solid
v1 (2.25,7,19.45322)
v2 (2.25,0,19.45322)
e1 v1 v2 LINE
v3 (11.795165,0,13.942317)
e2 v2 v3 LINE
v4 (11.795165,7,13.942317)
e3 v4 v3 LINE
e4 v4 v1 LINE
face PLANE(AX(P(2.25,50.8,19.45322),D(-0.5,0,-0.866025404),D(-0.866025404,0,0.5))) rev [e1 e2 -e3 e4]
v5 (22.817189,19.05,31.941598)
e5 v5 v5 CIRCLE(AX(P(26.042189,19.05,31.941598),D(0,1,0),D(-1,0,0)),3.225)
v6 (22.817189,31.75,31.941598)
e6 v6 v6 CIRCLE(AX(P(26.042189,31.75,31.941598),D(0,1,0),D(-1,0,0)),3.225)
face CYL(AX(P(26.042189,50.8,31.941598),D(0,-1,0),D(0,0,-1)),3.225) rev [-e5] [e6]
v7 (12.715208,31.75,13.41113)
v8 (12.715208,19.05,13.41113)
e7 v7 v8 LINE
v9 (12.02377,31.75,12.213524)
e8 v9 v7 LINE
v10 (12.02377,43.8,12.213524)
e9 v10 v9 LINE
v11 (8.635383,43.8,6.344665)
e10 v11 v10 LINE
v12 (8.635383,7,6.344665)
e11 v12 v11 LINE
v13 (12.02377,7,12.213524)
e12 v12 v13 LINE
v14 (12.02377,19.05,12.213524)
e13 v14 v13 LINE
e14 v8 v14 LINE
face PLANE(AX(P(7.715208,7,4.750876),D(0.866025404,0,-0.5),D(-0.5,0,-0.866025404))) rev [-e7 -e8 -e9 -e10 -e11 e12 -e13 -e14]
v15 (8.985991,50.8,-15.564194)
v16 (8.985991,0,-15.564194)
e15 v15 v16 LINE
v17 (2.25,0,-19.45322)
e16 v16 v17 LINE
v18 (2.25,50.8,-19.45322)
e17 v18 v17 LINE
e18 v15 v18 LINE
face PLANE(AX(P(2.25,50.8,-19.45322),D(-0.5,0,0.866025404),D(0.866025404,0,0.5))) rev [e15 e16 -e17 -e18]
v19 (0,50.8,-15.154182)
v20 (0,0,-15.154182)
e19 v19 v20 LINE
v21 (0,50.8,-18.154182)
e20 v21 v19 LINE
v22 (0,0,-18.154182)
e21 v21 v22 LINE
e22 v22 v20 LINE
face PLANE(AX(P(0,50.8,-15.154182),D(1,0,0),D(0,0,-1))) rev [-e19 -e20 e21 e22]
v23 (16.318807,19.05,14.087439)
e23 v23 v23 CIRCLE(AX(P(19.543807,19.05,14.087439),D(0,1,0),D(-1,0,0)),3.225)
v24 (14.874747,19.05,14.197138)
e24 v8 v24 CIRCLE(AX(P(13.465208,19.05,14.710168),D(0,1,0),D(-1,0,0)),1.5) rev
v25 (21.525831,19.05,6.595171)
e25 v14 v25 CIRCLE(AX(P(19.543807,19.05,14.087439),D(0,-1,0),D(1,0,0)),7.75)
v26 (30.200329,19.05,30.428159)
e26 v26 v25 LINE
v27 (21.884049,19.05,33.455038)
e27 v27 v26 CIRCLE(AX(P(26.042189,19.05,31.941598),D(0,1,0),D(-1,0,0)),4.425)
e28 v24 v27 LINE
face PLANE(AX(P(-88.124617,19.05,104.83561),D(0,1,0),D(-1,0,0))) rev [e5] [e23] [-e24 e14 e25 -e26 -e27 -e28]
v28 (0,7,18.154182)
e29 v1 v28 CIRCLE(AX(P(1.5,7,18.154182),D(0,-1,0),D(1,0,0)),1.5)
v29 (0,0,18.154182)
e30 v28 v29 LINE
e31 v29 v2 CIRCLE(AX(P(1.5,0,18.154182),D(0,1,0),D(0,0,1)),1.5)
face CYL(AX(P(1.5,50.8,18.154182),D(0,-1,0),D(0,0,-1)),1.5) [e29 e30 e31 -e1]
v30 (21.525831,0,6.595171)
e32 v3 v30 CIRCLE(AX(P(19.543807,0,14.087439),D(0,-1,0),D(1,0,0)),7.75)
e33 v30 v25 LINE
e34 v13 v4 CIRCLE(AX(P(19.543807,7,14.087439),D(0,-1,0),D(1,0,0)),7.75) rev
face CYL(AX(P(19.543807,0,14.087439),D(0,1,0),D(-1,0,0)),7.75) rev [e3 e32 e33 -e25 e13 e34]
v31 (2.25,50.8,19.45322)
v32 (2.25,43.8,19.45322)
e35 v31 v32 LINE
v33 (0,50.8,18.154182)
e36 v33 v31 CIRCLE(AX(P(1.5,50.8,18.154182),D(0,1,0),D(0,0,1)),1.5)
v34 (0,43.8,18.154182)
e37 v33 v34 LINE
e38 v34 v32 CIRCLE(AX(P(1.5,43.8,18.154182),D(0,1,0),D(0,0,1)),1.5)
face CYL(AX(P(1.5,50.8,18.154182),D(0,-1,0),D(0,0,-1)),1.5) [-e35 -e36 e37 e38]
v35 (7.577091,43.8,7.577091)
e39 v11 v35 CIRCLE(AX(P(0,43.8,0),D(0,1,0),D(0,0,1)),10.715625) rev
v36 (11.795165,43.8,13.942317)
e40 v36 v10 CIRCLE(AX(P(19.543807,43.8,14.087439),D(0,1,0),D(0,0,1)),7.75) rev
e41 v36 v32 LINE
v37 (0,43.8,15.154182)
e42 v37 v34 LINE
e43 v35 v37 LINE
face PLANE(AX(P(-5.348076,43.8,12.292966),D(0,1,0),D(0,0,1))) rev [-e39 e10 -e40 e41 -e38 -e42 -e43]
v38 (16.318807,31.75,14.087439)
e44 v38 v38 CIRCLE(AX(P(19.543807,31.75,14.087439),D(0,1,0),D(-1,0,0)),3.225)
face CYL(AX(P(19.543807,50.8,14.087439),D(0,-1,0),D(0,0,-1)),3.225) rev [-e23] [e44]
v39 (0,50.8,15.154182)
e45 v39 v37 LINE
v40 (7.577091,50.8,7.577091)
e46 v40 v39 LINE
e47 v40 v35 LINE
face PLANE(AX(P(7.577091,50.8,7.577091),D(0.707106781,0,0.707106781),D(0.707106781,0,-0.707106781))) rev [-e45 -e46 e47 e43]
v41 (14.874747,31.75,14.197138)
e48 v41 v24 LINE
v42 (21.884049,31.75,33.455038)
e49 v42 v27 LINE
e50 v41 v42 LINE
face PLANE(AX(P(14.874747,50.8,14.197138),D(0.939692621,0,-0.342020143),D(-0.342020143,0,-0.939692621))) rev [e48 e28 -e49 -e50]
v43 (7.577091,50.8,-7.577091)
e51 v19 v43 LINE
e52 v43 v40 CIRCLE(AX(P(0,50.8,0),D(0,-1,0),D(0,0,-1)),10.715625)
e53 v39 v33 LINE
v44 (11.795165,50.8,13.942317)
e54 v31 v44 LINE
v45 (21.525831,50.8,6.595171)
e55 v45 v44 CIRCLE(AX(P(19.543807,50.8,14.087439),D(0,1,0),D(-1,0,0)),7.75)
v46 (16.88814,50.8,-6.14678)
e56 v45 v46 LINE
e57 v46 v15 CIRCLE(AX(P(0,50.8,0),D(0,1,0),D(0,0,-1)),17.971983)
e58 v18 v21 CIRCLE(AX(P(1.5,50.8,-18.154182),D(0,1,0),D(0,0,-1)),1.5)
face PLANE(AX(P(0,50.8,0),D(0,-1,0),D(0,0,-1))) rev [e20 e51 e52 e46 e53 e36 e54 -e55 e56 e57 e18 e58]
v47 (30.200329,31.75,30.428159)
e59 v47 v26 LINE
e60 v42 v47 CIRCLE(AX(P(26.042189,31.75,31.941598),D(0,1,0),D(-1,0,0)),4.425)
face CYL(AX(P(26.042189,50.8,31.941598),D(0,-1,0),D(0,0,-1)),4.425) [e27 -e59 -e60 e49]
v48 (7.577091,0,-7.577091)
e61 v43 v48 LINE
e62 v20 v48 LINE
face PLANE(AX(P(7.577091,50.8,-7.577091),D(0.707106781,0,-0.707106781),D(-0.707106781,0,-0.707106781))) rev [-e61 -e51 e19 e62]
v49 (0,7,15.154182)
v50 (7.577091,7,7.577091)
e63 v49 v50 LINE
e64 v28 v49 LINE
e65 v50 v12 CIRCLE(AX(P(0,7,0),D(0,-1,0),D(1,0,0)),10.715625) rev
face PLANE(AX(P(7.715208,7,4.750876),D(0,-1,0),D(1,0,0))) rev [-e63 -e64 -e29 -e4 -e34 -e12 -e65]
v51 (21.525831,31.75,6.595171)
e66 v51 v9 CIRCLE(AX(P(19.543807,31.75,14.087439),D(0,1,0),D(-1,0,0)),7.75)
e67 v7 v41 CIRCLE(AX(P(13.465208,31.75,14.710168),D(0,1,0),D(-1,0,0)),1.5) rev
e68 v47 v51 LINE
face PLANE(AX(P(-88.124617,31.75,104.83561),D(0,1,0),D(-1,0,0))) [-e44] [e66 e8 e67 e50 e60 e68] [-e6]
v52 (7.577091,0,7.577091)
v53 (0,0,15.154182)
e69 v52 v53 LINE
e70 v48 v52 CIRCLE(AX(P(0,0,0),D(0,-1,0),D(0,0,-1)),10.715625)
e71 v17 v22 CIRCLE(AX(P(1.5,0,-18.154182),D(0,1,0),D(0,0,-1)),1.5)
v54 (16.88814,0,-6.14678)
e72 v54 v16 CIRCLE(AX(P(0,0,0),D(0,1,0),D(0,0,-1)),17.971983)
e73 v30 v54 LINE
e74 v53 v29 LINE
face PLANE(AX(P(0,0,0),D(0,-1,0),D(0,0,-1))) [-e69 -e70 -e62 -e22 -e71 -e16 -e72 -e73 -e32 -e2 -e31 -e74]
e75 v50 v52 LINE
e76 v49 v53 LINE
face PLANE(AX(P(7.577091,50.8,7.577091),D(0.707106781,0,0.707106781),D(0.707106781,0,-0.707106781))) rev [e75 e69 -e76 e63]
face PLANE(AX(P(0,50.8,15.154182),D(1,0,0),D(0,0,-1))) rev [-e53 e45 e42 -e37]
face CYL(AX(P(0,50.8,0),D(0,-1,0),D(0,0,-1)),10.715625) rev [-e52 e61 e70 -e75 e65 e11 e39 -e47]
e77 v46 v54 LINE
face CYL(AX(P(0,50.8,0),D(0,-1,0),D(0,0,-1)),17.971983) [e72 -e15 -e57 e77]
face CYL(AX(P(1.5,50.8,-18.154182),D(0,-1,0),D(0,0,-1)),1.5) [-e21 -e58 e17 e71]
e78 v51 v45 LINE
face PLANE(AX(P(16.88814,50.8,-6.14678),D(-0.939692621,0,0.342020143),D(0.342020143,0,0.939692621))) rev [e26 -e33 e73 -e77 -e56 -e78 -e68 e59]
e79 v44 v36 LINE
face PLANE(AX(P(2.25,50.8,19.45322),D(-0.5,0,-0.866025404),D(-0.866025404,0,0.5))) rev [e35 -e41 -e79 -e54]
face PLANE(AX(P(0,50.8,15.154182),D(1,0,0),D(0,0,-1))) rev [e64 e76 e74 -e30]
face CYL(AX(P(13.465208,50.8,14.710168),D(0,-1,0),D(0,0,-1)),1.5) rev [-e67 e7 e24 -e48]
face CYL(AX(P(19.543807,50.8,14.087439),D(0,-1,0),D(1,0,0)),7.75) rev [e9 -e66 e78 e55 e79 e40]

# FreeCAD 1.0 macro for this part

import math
import FreeCAD as App
import Part
import Sketcher
Q = App.Units.Quantity


def add_polygon(sketch, points):
    """Adds a closed chain of lines whose ends are joined by coincident constraints."""
    first, n = sketch.GeometryCount, len(points)
    for a, b in zip(points, points[1:] + points[:1]):
        sketch.addGeometry(Part.LineSegment(App.Vector(*a, 0), App.Vector(*b, 0)), False)
    for i in range(n):
        sketch.addConstraint(Sketcher.Constraint("Coincident", first + i, 2, first + (i + 1) % n, 1))

doc = App.newDocument("Part")
params = doc.addObject("Spreadsheet::Sheet", "Params")
for row, (alias, value) in enumerate([
    ("sketch1_radius", "0.421875 in"),
    ("pad1_length", "2 in"),
    ("sketch2_width", "10 in"),
    ("sketch2_height", "0.75 in"),
    ("pocket2_length", "10 mm"),
], start=1):
    params.set(f"A{row}", alias)
    params.set(f"B{row}", "=" + value)
    params.setAlias(f"B{row}", alias)

body = doc.addObject("PartDesign::Body", "Body")

# Sketch on XZ plane
sketch1 = body.newObject("Sketcher::SketchObject", "Sketch")
sketch1.AttachmentSupport = (doc.getObject("XZ_Plane"), [""])
sketch1.MapMode = "FlatFace"
sketch1.addGeometry([
    Part.LineSegment(App.Vector(0, -15.2, 0), App.Vector(7.6, -7.6, 0)),  # 0
    Part.ArcOfCircle(Part.Circle(App.Vector(0, 0, 0), App.Vector(0, 0, 1), 10.7), math.radians(-45), math.radians(45)),  # 1
    Part.LineSegment(App.Vector(7.6, 7.6, 0), App.Vector(0, 15.2, 0)),  # 2
    Part.LineSegment(App.Vector(0, 15.2, 0), App.Vector(0, 18.2, 0)),  # 3
    Part.ArcOfCircle(Part.Circle(App.Vector(1.5, 18.2, 0), App.Vector(0, 0, 1), 1.5), math.radians(60), math.radians(180)),  # 4
    Part.LineSegment(App.Vector(2.2, 19.5, 0), App.Vector(12.7, 13.4, 0)),  # 5
    Part.ArcOfCircle(Part.Circle(App.Vector(13.5, 14.7, 0), App.Vector(0, 0, 1), 1.5), math.radians(-120), math.radians(-20)),  # 6
    Part.LineSegment(App.Vector(14.9, 14.2, 0), App.Vector(21.9, 33.5, 0)),  # 7
    Part.ArcOfCircle(Part.Circle(App.Vector(26, 31.9, 0), App.Vector(0, 0, 1), 4.4), math.radians(-20), math.radians(160)),  # 8
    Part.LineSegment(App.Vector(30.2, 30.4, 0), App.Vector(16.9, -6.1, 0)),  # 9
    Part.ArcOfCircle(Part.Circle(App.Vector(0, 0, 0), App.Vector(0, 0, 1), 18), math.radians(-60), math.radians(-20)),  # 10
    Part.LineSegment(App.Vector(9, -15.6, 0), App.Vector(2.2, -19.5, 0)),  # 11
    Part.ArcOfCircle(Part.Circle(App.Vector(1.5, -18.2, 0), App.Vector(0, 0, 1), 1.5), math.radians(180), math.radians(300)),  # 12
    Part.LineSegment(App.Vector(0, -18.2, 0), App.Vector(0, -15.2, 0)),  # 13
    Part.Circle(App.Vector(26, 31.9, 0), App.Vector(0, 0, 1), 3.2),  # 14
    Part.Circle(App.Vector(19.5, 14.1, 0), App.Vector(0, 0, 1), 3.2),  # 15
], False)
sketch1.addConstraint([
    Sketcher.Constraint("Tangent", 0, 2, 1, 1),
    Sketcher.Constraint("Tangent", 1, 2, 2, 1),
    Sketcher.Constraint("Coincident", 2, 2, 3, 1),
    Sketcher.Constraint("Tangent", 3, 2, 4, 2),
    Sketcher.Constraint("Tangent", 4, 1, 5, 1),
    Sketcher.Constraint("Tangent", 5, 2, 6, 1),
    Sketcher.Constraint("Tangent", 6, 2, 7, 1),
    Sketcher.Constraint("Tangent", 7, 2, 8, 2),
    Sketcher.Constraint("Tangent", 8, 1, 9, 1),
    Sketcher.Constraint("Tangent", 9, 2, 10, 2),
    Sketcher.Constraint("Tangent", 10, 1, 11, 1),
    Sketcher.Constraint("Tangent", 11, 2, 12, 2),
    Sketcher.Constraint("Tangent", 12, 1, 13, 1),
    Sketcher.Constraint("Coincident", 13, 2, 0, 1),
    Sketcher.Constraint("Vertical", 3),
    Sketcher.Constraint("Vertical", 13),
    Sketcher.Constraint("Coincident", 1, 3, -1, 1),
    Sketcher.Constraint("Coincident", 10, 3, -1, 1),
    Sketcher.Constraint("Coincident", 14, 3, 8, 3),
    Sketcher.Constraint("Equal", 4, 6),
    Sketcher.Constraint("Equal", 6, 12),
    Sketcher.Constraint("Equal", 14, 15),
    Sketcher.Constraint("Symmetric", 3, 2, 12, 1, -1, 1),
    Sketcher.Constraint("Symmetric", 4, 1, 11, 2, -1),
    Sketcher.Constraint("Perpendicular", 0, 2),
    Sketcher.Constraint("Parallel", 7, 9),
    Sketcher.Constraint("Vertical", 0, 2, 1, 2),
    Sketcher.Constraint("Angle", 5, Q("-30 deg")),
    Sketcher.Constraint("Angle", 7, Q("70 deg")),
    Sketcher.Constraint("Radius", 1, Q("0.421875 in")),
    Sketcher.Constraint("Diameter", 14, Q("6.45 mm")),
    Sketcher.Constraint("Radius", 4, Q("1.5 mm")),
    Sketcher.Constraint("Radius", 8, Q("4.425 mm")),
    Sketcher.Constraint("DistanceY", 3, 1, 3, 2, Q("3 mm")),
    Sketcher.Constraint("DistanceY", -1, 1, 8, 3, Q("31.941598 mm")),
    Sketcher.Constraint("DistanceX", 6, 3, 15, 3, Q("6.078598 mm")),
    Sketcher.Constraint("DistanceY", 15, 3, 6, 2, Q("0.109699 mm")),
])
sketch1.setExpression("Constraints[29]", "Params.sketch1_radius")
pad1 = body.newObject("PartDesign::Pad", "Pad")
pad1.Profile = sketch1
pad1.setExpression("Length", "Params.pad1_length")
pad1.Reversed = True

# Sketch on an angled plane
sketch2 = body.newObject("Sketcher::SketchObject", "Sketch001")
sketch2.Placement = App.Placement(App.Vector(8.985991, 0, 15.564194), App.Rotation(App.Vector(0.866025404, 0, -0.5), App.Vector(0, 1, 0), App.Vector(0.5, 0, 0.866025404), "ZXY"))
add_polygon(sketch2, [(-129, 51), (-129, 32), (125, 32), (125, 51)])  # lines 0-3
add_polygon(sketch2, [(-129, 19), (-129, 0), (125, 0), (125, 19)])  # lines 4-7
sketch2.addConstraint([
    Sketcher.Constraint("Vertical", 0),
    Sketcher.Constraint("Horizontal", 1),
    Sketcher.Constraint("Vertical", 2),
    Sketcher.Constraint("Horizontal", 3),
    Sketcher.Constraint("Vertical", 4),
    Sketcher.Constraint("Horizontal", 5),
    Sketcher.Constraint("Vertical", 6),
    Sketcher.Constraint("Horizontal", 7),
    Sketcher.Constraint("PointOnObject", 4, 2, -1),
    Sketcher.Constraint("Vertical", 3, 2, 4, 2),
    Sketcher.Constraint("Vertical", 2, 2, 5, 2),
    Sketcher.Constraint("Equal", 2, 4),
    Sketcher.Constraint("DistanceX", 1, 1, 1, 2, Q("10 in")),
    Sketcher.Constraint("DistanceY", -1, 1, 2, 2, Q("2 in")),
    Sketcher.Constraint("DistanceY", 0, 2, 0, 1, Q("0.75 in")),
    Sketcher.Constraint("DistanceX", 0, 2, -1, 1, Q("128.735962 mm")),
])
sketch2.setExpression("Constraints[20]", "Params.sketch2_width")
sketch2.setExpression("Constraints[22]", "Params.sketch2_height")
pocket1 = body.newObject("PartDesign::Pocket", "Pocket")
pocket1.Profile = sketch2
pocket1.Type = "ThroughAll"
pocket1.Reversed = True

# Sketch on an angled plane
sketch3 = body.newObject("Sketcher::SketchObject", "Sketch002")
sketch3.Placement = App.Placement(App.Vector(8.985991, 0, 15.564194), App.Rotation(App.Vector(0.866025404, 0, -0.5), App.Vector(0, 1, 0), App.Vector(0.5, 0, 0.866025404), "ZXY"))
add_polygon(sketch3, [(-11, 7), (4, 7), (4, 44), (-11, 44)])  # lines 0-3
sketch3.addConstraint([
    Sketcher.Constraint("Horizontal", 0),
    Sketcher.Constraint("Vertical", 1),
    Sketcher.Constraint("Horizontal", 2),
    Sketcher.Constraint("Vertical", 3),
    Sketcher.Constraint("DistanceY", 1, 1, 1, 2, Q("36.8 mm")),
    Sketcher.Constraint("DistanceX", 0, 1, 0, 2, Q("15.084181 mm")),
    Sketcher.Constraint("DistanceY", -1, 1, 0, 2, Q("7 mm")),
    Sketcher.Constraint("DistanceX", -1, 1, 0, 2, Q("4.306128 mm")),
])
pocket2 = body.newObject("PartDesign::Pocket", "Pocket001")
pocket2.Profile = sketch3
pocket2.setExpression("Length", "Params.pocket2_length")

# Sketch on XZ plane
sketch4 = body.newObject("Sketcher::SketchObject", "Sketch003")
sketch4.AttachmentSupport = (doc.getObject("XZ_Plane"), [""])
sketch4.MapMode = "FlatFace"
sketch4.AttachmentOffset = App.Placement(App.Vector(0, 0, -1.25 * 25.4), App.Rotation())
sketch4.addGeometry(Part.Circle(App.Vector(20, 14, 0), App.Vector(0, 0, 1), 8), False)
sketch4.addConstraint([
    Sketcher.Constraint("Diameter", 0, Q("15.5 mm")),
    Sketcher.Constraint("DistanceY", -1, 1, 0, 3, Q("14.087439 mm")),
    Sketcher.Constraint("DistanceX", -1, 1, 0, 3, Q("19.543807 mm")),
])
pocket3 = body.newObject("PartDesign::Pocket", "Pocket002")
pocket3.Profile = sketch4
pocket3.Type = "ThroughAll"

# Sketch on XZ plane
sketch5 = body.newObject("Sketcher::SketchObject", "Sketch004")
sketch5.AttachmentSupport = (doc.getObject("XZ_Plane"), [""])
sketch5.MapMode = "FlatFace"
sketch5.AttachmentOffset = App.Placement(App.Vector(0, 0, -0.75 * 25.4), App.Rotation())
sketch5.addGeometry(Part.Circle(App.Vector(20, 14, 0), App.Vector(0, 0, 1), 8), False)
sketch5.addConstraint([
    Sketcher.Constraint("Diameter", 0, Q("15.5 mm")),
    Sketcher.Constraint("DistanceY", -1, 1, 0, 3, Q("14.087439 mm")),
    Sketcher.Constraint("DistanceX", -1, 1, 0, 3, Q("19.543807 mm")),
])
pocket4 = body.newObject("PartDesign::Pocket", "Pocket003")
pocket4.Profile = sketch5
pocket4.Type = "ThroughAll"
pocket4.Reversed = True

doc.recompute()
